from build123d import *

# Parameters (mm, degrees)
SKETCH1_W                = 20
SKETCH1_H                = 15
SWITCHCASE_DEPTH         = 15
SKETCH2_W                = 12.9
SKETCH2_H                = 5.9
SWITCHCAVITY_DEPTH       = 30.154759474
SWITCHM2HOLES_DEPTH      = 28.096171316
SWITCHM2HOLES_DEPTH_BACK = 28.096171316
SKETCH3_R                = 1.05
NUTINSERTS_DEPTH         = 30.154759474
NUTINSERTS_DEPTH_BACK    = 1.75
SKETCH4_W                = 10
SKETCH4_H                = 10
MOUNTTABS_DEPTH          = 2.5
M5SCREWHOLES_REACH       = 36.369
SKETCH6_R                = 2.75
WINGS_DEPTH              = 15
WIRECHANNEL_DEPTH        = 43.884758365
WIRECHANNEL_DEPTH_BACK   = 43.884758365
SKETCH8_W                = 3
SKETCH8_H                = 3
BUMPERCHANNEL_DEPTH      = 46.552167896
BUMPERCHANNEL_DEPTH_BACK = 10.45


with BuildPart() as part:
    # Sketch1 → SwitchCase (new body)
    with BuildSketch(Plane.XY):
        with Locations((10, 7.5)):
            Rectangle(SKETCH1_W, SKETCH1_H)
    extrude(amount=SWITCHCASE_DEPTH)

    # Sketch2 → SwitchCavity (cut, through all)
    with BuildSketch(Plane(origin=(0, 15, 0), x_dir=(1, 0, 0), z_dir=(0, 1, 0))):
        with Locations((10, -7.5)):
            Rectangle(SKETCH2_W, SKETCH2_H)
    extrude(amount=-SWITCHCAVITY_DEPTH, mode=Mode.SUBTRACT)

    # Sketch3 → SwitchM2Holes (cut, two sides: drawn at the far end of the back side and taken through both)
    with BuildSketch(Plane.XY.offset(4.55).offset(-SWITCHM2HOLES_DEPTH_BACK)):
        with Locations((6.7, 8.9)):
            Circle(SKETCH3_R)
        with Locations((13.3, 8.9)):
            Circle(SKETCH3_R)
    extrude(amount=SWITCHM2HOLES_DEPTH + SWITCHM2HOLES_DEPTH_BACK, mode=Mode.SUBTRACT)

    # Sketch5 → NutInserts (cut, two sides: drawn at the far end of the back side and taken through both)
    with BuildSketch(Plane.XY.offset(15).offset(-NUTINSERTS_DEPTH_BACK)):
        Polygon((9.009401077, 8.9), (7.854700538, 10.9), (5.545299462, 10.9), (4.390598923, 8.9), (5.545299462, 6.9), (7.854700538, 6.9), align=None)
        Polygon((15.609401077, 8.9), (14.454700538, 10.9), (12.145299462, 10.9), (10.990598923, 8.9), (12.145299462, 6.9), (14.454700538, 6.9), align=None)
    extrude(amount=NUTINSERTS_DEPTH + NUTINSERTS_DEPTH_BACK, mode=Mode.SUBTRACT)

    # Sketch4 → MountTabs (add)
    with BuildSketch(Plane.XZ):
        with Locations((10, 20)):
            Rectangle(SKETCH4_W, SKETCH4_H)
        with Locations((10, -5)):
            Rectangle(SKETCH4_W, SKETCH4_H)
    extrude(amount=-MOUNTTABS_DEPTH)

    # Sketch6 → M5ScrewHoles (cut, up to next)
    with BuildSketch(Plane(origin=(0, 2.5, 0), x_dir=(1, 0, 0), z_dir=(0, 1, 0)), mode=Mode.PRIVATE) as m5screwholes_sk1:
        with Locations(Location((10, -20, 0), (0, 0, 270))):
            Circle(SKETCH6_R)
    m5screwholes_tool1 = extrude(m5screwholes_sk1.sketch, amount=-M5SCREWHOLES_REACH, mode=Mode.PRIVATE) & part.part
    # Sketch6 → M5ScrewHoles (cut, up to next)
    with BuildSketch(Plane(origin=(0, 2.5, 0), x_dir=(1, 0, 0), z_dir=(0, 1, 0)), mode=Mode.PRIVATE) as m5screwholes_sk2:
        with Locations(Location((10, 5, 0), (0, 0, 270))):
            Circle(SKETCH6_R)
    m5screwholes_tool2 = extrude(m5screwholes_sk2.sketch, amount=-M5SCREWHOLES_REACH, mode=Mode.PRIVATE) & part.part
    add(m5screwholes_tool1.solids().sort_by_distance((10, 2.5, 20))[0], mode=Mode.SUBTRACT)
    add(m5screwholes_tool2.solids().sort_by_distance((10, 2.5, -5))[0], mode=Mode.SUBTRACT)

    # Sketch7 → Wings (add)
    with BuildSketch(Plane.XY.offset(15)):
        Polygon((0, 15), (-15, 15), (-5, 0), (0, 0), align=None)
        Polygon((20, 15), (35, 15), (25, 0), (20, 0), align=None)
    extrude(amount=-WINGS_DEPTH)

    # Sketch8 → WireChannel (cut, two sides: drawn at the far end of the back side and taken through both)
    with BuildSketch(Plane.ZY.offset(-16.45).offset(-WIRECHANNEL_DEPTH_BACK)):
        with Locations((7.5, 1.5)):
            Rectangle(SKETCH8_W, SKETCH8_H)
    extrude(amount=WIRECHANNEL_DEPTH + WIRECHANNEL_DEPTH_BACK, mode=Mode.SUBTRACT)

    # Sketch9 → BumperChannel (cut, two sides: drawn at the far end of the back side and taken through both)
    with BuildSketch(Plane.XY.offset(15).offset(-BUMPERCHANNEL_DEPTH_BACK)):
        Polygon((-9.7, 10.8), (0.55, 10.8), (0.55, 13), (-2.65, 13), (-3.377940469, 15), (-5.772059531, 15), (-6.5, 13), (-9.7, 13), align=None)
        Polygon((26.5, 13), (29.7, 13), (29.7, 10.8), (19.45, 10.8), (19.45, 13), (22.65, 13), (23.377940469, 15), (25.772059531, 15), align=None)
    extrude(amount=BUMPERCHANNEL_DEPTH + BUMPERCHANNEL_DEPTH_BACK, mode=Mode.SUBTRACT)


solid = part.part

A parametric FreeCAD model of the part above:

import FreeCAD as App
import Part
import Sketcher
Q = App.Units.Quantity


def add_polygon(sketch, points):
    """Adds a closed chain of lines whose ends are joined by coincident constraints."""
    first, n = sketch.GeometryCount, len(points)
    for a, b in zip(points, points[1:] + points[:1]):
        sketch.addGeometry(Part.LineSegment(App.Vector(*a, 0), App.Vector(*b, 0)), False)
    for i in range(n):
        sketch.addConstraint(Sketcher.Constraint("Coincident", first + i, 2, first + (i + 1) % n, 1))

doc = App.newDocument("Part")
body = doc.addObject("PartDesign::Body", "Body")

# Sketch on XY plane
sketch1 = body.newObject("Sketcher::SketchObject", "Sketch")
sketch1.AttachmentSupport = (doc.getObject("XY_Plane"), [""])
sketch1.MapMode = "FlatFace"
add_polygon(sketch1, [(0, 15), (0, 0), (20, 0), (20, 15)])  # lines 0-3
sketch1.addConstraint([
    Sketcher.Constraint("Vertical", 0),
    Sketcher.Constraint("Horizontal", 1),
    Sketcher.Constraint("Vertical", 2),
    Sketcher.Constraint("Horizontal", 3),
    Sketcher.Constraint("Coincident", 0, 2, -1, 1),
    Sketcher.Constraint("DistanceX", 1, 1, 1, 2, 20.0),
    Sketcher.Constraint("DistanceY", 0, 2, 0, 1, 15.0),
])
pad1 = body.newObject("PartDesign::Pad", "Pad")
pad1.Profile = sketch1
pad1.Length = 15

# Sketch on XZ plane
sketch2 = body.newObject("Sketcher::SketchObject", "Sketch001")
sketch2.AttachmentSupport = (doc.getObject("XZ_Plane"), [""])
sketch2.MapMode = "FlatFace"
sketch2.AttachmentOffset = App.Placement(App.Vector(0, 0, -15), App.Rotation())
add_polygon(sketch2, [(4, 5), (4, 10), (16, 10), (16, 5)])  # lines 0-3
sketch2.addConstraint([
    Sketcher.Constraint("Vertical", 0),
    Sketcher.Constraint("Horizontal", 1),
    Sketcher.Constraint("Vertical", 2),
    Sketcher.Constraint("Horizontal", 3),
    Sketcher.Constraint("DistanceX", 1, 1, 1, 2, 12.9),
    Sketcher.Constraint("DistanceY", 0, 1, 0, 2, 5.9),
    Sketcher.Constraint("DistanceX", -1, 1, 0, 2, 3.55),
    Sketcher.Constraint("DistanceY", -1, 1, 0, 2, 10.45),
])
pocket1 = body.newObject("PartDesign::Pocket", "Pocket")
pocket1.Profile = sketch2
pocket1.Type = "ThroughAll"
pocket1.Reversed = True

# Sketch on XY plane
sketch3 = body.newObject("Sketcher::SketchObject", "Sketch002")
sketch3.AttachmentSupport = (doc.getObject("XY_Plane"), [""])
sketch3.MapMode = "FlatFace"
sketch3.AttachmentOffset = App.Placement(App.Vector(0, 0, 4.55), App.Rotation())
sketch3.addGeometry([
    Part.Circle(App.Vector(6.7, 8.9, 0), App.Vector(0, 0, 1), 1.1),
    Part.Circle(App.Vector(13.3, 8.9, 0), App.Vector(0, 0, 1), 1.1),
], False)
sketch3.addConstraint([
    Sketcher.Constraint("Equal", 0, 1),
    Sketcher.Constraint("Horizontal", 0, 3, 1, 3),
    Sketcher.Constraint("Diameter", 0, 2.1),
    Sketcher.Constraint("DistanceX", -1, 1, 0, 3, 6.7),
    Sketcher.Constraint("DistanceY", -1, 1, 0, 3, 8.9),
    Sketcher.Constraint("DistanceX", -1, 1, 1, 3, 13.3),
])
pocket2 = body.newObject("PartDesign::Pocket", "Pocket001")
pocket2.Profile = sketch3
pocket2.Type = "ThroughAll"
pocket2.Midplane = True

# Sketch on XY plane
sketch4 = body.newObject("Sketcher::SketchObject", "Sketch003")
sketch4.AttachmentSupport = (doc.getObject("XY_Plane"), [""])
sketch4.MapMode = "FlatFace"
sketch4.AttachmentOffset = App.Placement(App.Vector(0, 0, 15), App.Rotation())
add_polygon(sketch4, [(9, 8.9), (7.9, 10.9), (5.5, 10.9), (4.4, 8.9), (5.5, 6.9), (7.9, 6.9)])  # lines 0-5
add_polygon(sketch4, [(15.6, 8.9), (14.5, 10.9), (12.1, 10.9), (11, 8.9), (12.1, 6.9), (14.5, 6.9)])  # lines 6-11
sketch4.addConstraint([
    Sketcher.Constraint("Horizontal", 1),
    Sketcher.Constraint("Horizontal", 4),
    Sketcher.Constraint("Horizontal", 7),
    Sketcher.Constraint("Horizontal", 10),
    Sketcher.Constraint("Parallel", 0, 3),
    Sketcher.Constraint("Parallel", 2, 5),
    Sketcher.Constraint("Parallel", 3, 6),
    Sketcher.Constraint("Parallel", 5, 8),
    Sketcher.Constraint("Parallel", 6, 9),
    Sketcher.Constraint("Parallel", 8, 11),
    Sketcher.Constraint("Horizontal", 2, 2, 5, 2),
    Sketcher.Constraint("Horizontal", 1, 2, 6, 2),
    Sketcher.Constraint("Horizontal", 5, 2, 8, 2),
    Sketcher.Constraint("Horizontal", 4, 2, 9, 2),
    Sketcher.Constraint("Horizontal", 8, 2, 11, 2),
    Sketcher.Constraint("Vertical", 1, 2, 3, 2),
    Sketcher.Constraint("Vertical", 0, 2, 4, 2),
    Sketcher.Constraint("Equal", 4, 7),
    Sketcher.Constraint("Angle", 0, Q("120 deg")),
    Sketcher.Constraint("DistanceY", 2, 2, 1, 2, 2.0),
    Sketcher.Constraint("DistanceY", -1, 1, 0, 2, 10.9),
    Sketcher.Constraint("DistanceX", 0, 2, 6, 2, 6.6),
    Sketcher.Constraint("DistanceX", 1, 2, 1, 1, 2.309401),
    Sketcher.Constraint("DistanceX", -1, 1, 0, 2, 7.854701),
])
pocket3 = body.newObject("PartDesign::Pocket", "Pocket002")
pocket3.Profile = sketch4
pocket3.Type = "TwoLengths"
pocket3.Length = 30.154759
pocket3.Length2 = 1.75
pocket3.Reversed = True

# Sketch on XZ plane
sketch5 = body.newObject("Sketcher::SketchObject", "Sketch004")
sketch5.AttachmentSupport = (doc.getObject("XZ_Plane"), [""])
sketch5.MapMode = "FlatFace"
add_polygon(sketch5, [(5, 25), (5, 15), (15, 15), (15, 25)])  # lines 0-3
add_polygon(sketch5, [(5, 0), (5, -10), (15, -10), (15, 0)])  # lines 4-7
sketch5.addConstraint([
    Sketcher.Constraint("Vertical", 0),
    Sketcher.Constraint("Horizontal", 1),
    Sketcher.Constraint("Vertical", 2),
    Sketcher.Constraint("Horizontal", 3),
    Sketcher.Constraint("Vertical", 4),
    Sketcher.Constraint("Horizontal", 5),
    Sketcher.Constraint("Vertical", 6),
    Sketcher.Constraint("Horizontal", 7),
    Sketcher.Constraint("PointOnObject", 6, 2, -1),
    Sketcher.Constraint("Vertical", 3, 2, 4, 2),
    Sketcher.Constraint("Vertical", 2, 2, 5, 2),
    Sketcher.Constraint("Equal", 7, 0),
    Sketcher.Constraint("Equal", 2, 4),
    Sketcher.Constraint("DistanceX", 1, 1, 1, 2, 10.0),
    Sketcher.Constraint("DistanceX", -1, 1, 0, 2, 5.0),
    Sketcher.Constraint("DistanceY", -1, 1, 0, 2, 15.0),
])
pad2 = body.newObject("PartDesign::Pad", "Pad001")
pad2.Profile = sketch5
pad2.Length = 2.5
pad2.Reversed = True

# Sketch on XZ plane
sketch6 = body.newObject("Sketcher::SketchObject", "Sketch005")
sketch6.AttachmentSupport = (doc.getObject("XZ_Plane"), [""])
sketch6.MapMode = "FlatFace"
sketch6.AttachmentOffset = App.Placement(App.Vector(0, 0, -2.5), App.Rotation())
sketch6.addGeometry(Part.Circle(App.Vector(10, 20, 0), App.Vector(0, 0, 1), 2.8), False)
sketch6.addConstraint([
    Sketcher.Constraint("Diameter", 0, 5.5),
    Sketcher.Constraint("DistanceX", -1, 1, 0, 3, 10.0),
    Sketcher.Constraint("DistanceY", -1, 1, 0, 3, 20.0),
])
pocket4 = body.newObject("PartDesign::Pocket", "Pocket003")
pocket4.Profile = sketch6
pocket4.Type = "UpToFirst"
pocket4.Reversed = True

# Sketch on XZ plane
sketch7 = body.newObject("Sketcher::SketchObject", "Sketch006")
sketch7.AttachmentSupport = (doc.getObject("XZ_Plane"), [""])
sketch7.MapMode = "FlatFace"
sketch7.AttachmentOffset = App.Placement(App.Vector(0, 0, -2.5), App.Rotation())
sketch7.addGeometry(Part.Circle(App.Vector(10, -5, 0), App.Vector(0, 0, 1), 2.8), False)
sketch7.addConstraint([
    Sketcher.Constraint("Diameter", 0, 5.5),
    Sketcher.Constraint("DistanceX", -1, 1, 0, 3, 10.0),
    Sketcher.Constraint("DistanceY", 0, 3, -1, 1, 5.0),
])
pocket5 = body.newObject("PartDesign::Pocket", "Pocket004")
pocket5.Profile = sketch7
pocket5.Type = "UpToFirst"
pocket5.Reversed = True

# Sketch on XY plane
sketch8 = body.newObject("Sketcher::SketchObject", "Sketch007")
sketch8.AttachmentSupport = (doc.getObject("XY_Plane"), [""])
sketch8.MapMode = "FlatFace"
sketch8.AttachmentOffset = App.Placement(App.Vector(0, 0, 15), App.Rotation())
add_polygon(sketch8, [(0, 15), (-15, 15), (-5, 0), (0, 0)])  # lines 0-3
add_polygon(sketch8, [(35, 15), (20, 15), (20, 0), (25, 0)])  # lines 4-7
sketch8.addConstraint([
    Sketcher.Constraint("Horizontal", 0),
    Sketcher.Constraint("Horizontal", 2),
    Sketcher.Constraint("Vertical", 3),
    Sketcher.Constraint("Horizontal", 4),
    Sketcher.Constraint("Vertical", 5),
    Sketcher.Constraint("Horizontal", 6),
    Sketcher.Constraint("Coincident", 2, 2, -1, 1),
    Sketcher.Constraint("PointOnObject", 5, 2, -1),
    Sketcher.Constraint("Horizontal", 3, 2, 4, 2),
    Sketcher.Constraint("Equal", 0, 4),
    Sketcher.Constraint("Equal", 2, 6),
    Sketcher.Constraint("Equal", 4, 3),
    Sketcher.Constraint("DistanceX", 0, 2, 0, 1, 15.0),
    Sketcher.Constraint("DistanceX", 2, 1, 2, 2, 5.0),
    Sketcher.Constraint("DistanceX", -1, 1, 4, 2, 20.0),
])
pad3 = body.newObject("PartDesign::Pad", "Pad002")
pad3.Profile = sketch8
pad3.Length = 15
pad3.Reversed = True

# Sketch on YZ plane
sketch9 = body.newObject("Sketcher::SketchObject", "Sketch008")
sketch9.AttachmentSupport = (doc.getObject("YZ_Plane"), [""])
sketch9.MapMode = "FlatFace"
sketch9.AttachmentOffset = App.Placement(App.Vector(0, 0, 16.45), App.Rotation())
add_polygon(sketch9, [(3, 6), (0, 6), (0, 9), (3, 9)])  # lines 0-3
sketch9.addConstraint([
    Sketcher.Constraint("Horizontal", 0),
    Sketcher.Constraint("Vertical", 1),
    Sketcher.Constraint("Horizontal", 2),
    Sketcher.Constraint("Vertical", 3),
    Sketcher.Constraint("PointOnObject", 0, 2, -2),
    Sketcher.Constraint("Equal", 2, 1),
    Sketcher.Constraint("DistanceX", 0, 2, 0, 1, 3.0),
    Sketcher.Constraint("DistanceY", -1, 1, 0, 2, 6.0),
])
pocket6 = body.newObject("PartDesign::Pocket", "Pocket005")
pocket6.Profile = sketch9
pocket6.Type = "ThroughAll"
pocket6.Midplane = True

# Sketch on XY plane
sketch10 = body.newObject("Sketcher::SketchObject", "Sketch009")
sketch10.AttachmentSupport = (doc.getObject("XY_Plane"), [""])
sketch10.MapMode = "FlatFace"
sketch10.AttachmentOffset = App.Placement(App.Vector(0, 0, 15), App.Rotation())
add_polygon(sketch10, [(-9.7, 10.8), (0.6, 10.8), (0.6, 13), (-2.6, 13), (-3.4, 15), (-5.8, 15), (-6.5, 13), (-9.7, 13)])  # lines 0-7
add_polygon(sketch10, [(29.7, 13), (26.5, 13), (25.8, 15), (23.4, 15), (22.6, 13), (19.4, 13), (19.4, 10.8), (29.7, 10.8)])  # lines 8-15
sketch10.addConstraint([
    Sketcher.Constraint("Horizontal", 0),
    Sketcher.Constraint("Vertical", 1),
    Sketcher.Constraint("Horizontal", 2),
    Sketcher.Constraint("Horizontal", 4),
    Sketcher.Constraint("Horizontal", 6),
    Sketcher.Constraint("Vertical", 7),
    Sketcher.Constraint("Horizontal", 8),
    Sketcher.Constraint("Horizontal", 10),
    Sketcher.Constraint("Horizontal", 12),
    Sketcher.Constraint("Vertical", 13),
    Sketcher.Constraint("Horizontal", 14),
    Sketcher.Constraint("Vertical", 15),
    Sketcher.Constraint("Parallel", 3, 9),
    Sketcher.Constraint("Parallel", 5, 11),
    Sketcher.Constraint("Horizontal", 2, 2, 5, 2),
    Sketcher.Constraint("Horizontal", 6, 2, 8, 2),
    Sketcher.Constraint("Horizontal", 4, 2, 9, 2),
    Sketcher.Constraint("Horizontal", 8, 2, 11, 2),
    Sketcher.Constraint("Horizontal", 7, 2, 13, 2),
    Sketcher.Constraint("Equal", 2, 6),
    Sketcher.Constraint("Equal", 6, 8),
    Sketcher.Constraint("Equal", 4, 10),
    Sketcher.Constraint("Equal", 8, 12),
    Sketcher.Constraint("Equal", 3, 5),
    Sketcher.Constraint("Angle", 3, Q("110 deg")),
    Sketcher.Constraint("DistanceX", 2, 2, 2, 1, 3.2),
    Sketcher.Constraint("DistanceY", 1, 1, 1, 2, 2.2),
    Sketcher.Constraint("DistanceY", -1, 1, 1, 2, 13.0),
    Sketcher.Constraint("DistanceY", -1, 1, 3, 2, 15.0),
    Sketcher.Constraint("DistanceX", 0, 1, 0, 2, 10.25),
    Sketcher.Constraint("DistanceX", 5, 2, -1, 1, 6.5),
    Sketcher.Constraint("DistanceX", -1, 1, 8, 2, 26.5),
])
pocket7 = body.newObject("PartDesign::Pocket", "Pocket006")
pocket7.Profile = sketch10
pocket7.Type = "TwoLengths"
pocket7.Length = 46.552168
pocket7.Length2 = 10.45
pocket7.Reversed = True

doc.recompute()
